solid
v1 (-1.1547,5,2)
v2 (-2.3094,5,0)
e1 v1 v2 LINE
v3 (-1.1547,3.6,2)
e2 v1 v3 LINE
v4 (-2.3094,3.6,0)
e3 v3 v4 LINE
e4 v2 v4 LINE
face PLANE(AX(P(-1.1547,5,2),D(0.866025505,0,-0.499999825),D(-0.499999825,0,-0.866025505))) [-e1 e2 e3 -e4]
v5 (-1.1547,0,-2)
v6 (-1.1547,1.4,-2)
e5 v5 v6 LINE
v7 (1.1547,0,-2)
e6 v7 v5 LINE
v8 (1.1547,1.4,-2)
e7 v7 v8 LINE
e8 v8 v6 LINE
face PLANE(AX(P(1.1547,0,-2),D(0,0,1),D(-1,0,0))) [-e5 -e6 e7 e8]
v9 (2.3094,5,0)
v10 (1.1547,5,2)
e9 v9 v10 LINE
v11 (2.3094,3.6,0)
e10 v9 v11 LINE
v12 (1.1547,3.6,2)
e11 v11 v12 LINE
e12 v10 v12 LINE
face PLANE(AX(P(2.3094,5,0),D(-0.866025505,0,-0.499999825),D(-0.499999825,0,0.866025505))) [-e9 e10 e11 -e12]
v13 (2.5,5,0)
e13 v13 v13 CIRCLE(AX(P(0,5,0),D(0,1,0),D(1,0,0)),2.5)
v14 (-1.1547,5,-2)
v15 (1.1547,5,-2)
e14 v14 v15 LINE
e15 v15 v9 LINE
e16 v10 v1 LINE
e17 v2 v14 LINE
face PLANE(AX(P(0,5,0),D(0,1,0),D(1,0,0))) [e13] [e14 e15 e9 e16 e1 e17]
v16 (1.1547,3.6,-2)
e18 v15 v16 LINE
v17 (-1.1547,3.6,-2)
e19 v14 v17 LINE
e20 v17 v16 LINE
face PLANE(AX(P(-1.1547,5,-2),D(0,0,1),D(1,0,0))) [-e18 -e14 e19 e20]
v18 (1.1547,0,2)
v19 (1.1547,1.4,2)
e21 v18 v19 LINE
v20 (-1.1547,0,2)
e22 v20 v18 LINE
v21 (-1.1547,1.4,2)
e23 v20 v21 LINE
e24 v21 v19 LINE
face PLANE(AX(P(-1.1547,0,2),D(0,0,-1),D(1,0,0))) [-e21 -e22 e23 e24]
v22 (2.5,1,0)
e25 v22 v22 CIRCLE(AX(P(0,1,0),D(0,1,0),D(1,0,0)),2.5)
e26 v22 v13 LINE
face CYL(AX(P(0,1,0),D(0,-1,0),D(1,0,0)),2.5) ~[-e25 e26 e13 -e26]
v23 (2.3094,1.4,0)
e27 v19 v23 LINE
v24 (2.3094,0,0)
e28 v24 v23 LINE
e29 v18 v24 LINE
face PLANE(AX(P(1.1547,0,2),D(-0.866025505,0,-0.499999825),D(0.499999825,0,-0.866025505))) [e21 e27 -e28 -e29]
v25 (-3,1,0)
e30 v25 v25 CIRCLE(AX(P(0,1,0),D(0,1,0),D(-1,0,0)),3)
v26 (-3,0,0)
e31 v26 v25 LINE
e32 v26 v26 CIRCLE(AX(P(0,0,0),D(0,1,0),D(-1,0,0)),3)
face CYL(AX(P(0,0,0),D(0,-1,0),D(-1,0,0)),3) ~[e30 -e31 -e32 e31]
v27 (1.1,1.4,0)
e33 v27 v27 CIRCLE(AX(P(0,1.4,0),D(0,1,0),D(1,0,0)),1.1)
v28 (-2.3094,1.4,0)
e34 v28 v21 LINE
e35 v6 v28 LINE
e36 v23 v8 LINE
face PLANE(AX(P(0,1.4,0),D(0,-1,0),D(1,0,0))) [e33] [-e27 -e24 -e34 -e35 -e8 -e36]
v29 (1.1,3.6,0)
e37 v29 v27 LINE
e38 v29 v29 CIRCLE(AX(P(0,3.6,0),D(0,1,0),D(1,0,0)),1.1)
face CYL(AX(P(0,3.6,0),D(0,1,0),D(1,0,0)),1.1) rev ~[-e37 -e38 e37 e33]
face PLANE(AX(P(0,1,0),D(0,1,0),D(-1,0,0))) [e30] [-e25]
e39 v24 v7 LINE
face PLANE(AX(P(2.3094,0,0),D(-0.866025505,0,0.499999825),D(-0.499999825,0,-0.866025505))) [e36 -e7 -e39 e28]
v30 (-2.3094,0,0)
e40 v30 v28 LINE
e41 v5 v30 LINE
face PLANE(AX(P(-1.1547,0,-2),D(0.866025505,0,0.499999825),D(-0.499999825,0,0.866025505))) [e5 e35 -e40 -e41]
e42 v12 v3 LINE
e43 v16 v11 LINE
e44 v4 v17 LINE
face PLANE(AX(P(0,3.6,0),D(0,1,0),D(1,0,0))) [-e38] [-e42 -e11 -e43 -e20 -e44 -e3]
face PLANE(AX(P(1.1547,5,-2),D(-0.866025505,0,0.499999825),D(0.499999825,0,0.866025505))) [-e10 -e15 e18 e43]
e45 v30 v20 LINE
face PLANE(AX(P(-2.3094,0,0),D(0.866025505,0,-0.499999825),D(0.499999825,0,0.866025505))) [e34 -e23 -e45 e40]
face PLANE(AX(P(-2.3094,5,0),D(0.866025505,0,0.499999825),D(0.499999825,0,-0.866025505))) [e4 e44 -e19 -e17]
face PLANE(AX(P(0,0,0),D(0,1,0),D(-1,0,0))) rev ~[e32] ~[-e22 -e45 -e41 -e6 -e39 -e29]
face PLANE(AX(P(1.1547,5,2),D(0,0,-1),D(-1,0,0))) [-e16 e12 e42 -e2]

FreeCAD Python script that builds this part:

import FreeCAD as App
import Part
import Sketcher

V = App.Vector
Q = App.Units.Quantity

doc = App.newDocument("Part")
body = doc.addObject("PartDesign::Body", "Body")

# Sketch on XZ plane
sketch1 = body.newObject("Sketcher::SketchObject", "Sketch")
sketch1.AttachmentSupport = (doc.getObject("XZ_Plane"), [""])
sketch1.MapMode = "FlatFace"
sketch1.addGeometry(Part.Circle(V(0, 0, 0), V(0, 0, 1), 3), False)
sketch1.addConstraint([
    Sketcher.Constraint("Coincident", 0, 3, -1, 1),
    Sketcher.Constraint("Diameter", 0, 6.0),
])
pad1 = body.newObject("PartDesign::Pad", "Pad")
pad1.Profile = sketch1
pad1.Length = 1
pad1.Reversed = True

# Sketch on XZ plane
sketch2 = body.newObject("Sketcher::SketchObject", "Sketch001")
sketch2.AttachmentSupport = (doc.getObject("XZ_Plane"), [""])
sketch2.MapMode = "FlatFace"
sketch2.AttachmentOffset = App.Placement(V(0, 0, -1), App.Rotation())
sketch2.addGeometry(Part.Circle(V(0, 0, 0), V(0, 0, 1), 2.5), False)
sketch2.addConstraint([
    Sketcher.Constraint("Coincident", 0, 3, -1, 1),
    Sketcher.Constraint("Diameter", 0, 5.0),
])
pad2 = body.newObject("PartDesign::Pad", "Pad001")
pad2.Profile = sketch2
pad2.Length = 4
pad2.Reversed = True

# Sketch on XZ plane
sketch3 = body.newObject("Sketcher::SketchObject", "Sketch002")
sketch3.AttachmentSupport = (doc.getObject("XZ_Plane"), [""])
sketch3.MapMode = "FlatFace"
sketch3.AttachmentOffset = App.Placement(V(0, 0, -5), App.Rotation())
sketch3.addGeometry([
    Part.LineSegment(V(-1.2, -2, 0), V(-2.3, 0, 0)),  # 0
    Part.LineSegment(V(-2.3, 0, 0), V(-1.2, 2, 0)),  # 1
    Part.LineSegment(V(-1.2, 2, 0), V(1.2, 2, 0)),  # 2
    Part.LineSegment(V(1.2, 2, 0), V(2.3, 0, 0)),  # 3
    Part.LineSegment(V(2.3, 0, 0), V(1.2, -2, 0)),  # 4
    Part.LineSegment(V(1.2, -2, 0), V(-1.2, -2, 0)),  # 5
], False)
sketch3.addConstraint([
    Sketcher.Constraint("Coincident", 0, 2, 1, 1),
    Sketcher.Constraint("Coincident", 1, 2, 2, 1),
    Sketcher.Constraint("Coincident", 2, 2, 3, 1),
    Sketcher.Constraint("Coincident", 3, 2, 4, 1),
    Sketcher.Constraint("Coincident", 4, 2, 5, 1),
    Sketcher.Constraint("Coincident", 5, 2, 0, 1),
    Sketcher.Constraint("Horizontal", 2),
    Sketcher.Constraint("Horizontal", 5),
    Sketcher.Constraint("Symmetric", 0, 2, 3, 2, -1, 1),
    Sketcher.Constraint("Symmetric", 1, 2, 4, 2, -1, 1),
    Sketcher.Constraint("PointOnObject", 0, 2, -1),
    Sketcher.Constraint("Parallel", 0, 3),
    Sketcher.Constraint("Vertical", 2, 2, 4, 2),
    Sketcher.Constraint("DistanceY", 4, 2, 2, 2, 4.0),
    Sketcher.Constraint("Angle", 0, Q("120 deg")),
    Sketcher.Constraint("DistanceX", 2, 1, 2, 2, 2.3094),
])
pocket1 = body.newObject("PartDesign::Pocket", "Pocket")
pocket1.Profile = sketch3
pocket1.Length = 1.4
pocket1.Reversed = True

# Sketch on XZ plane
sketch4 = body.newObject("Sketcher::SketchObject", "Sketch003")
sketch4.AttachmentSupport = (doc.getObject("XZ_Plane"), [""])
sketch4.MapMode = "FlatFace"
sketch4.AttachmentOffset = App.Placement(V(0, 0, -3.6), App.Rotation())
sketch4.addGeometry(Part.Circle(V(0, 0, 0), V(0, 0, 1), 1.1), False)
sketch4.addConstraint([
    Sketcher.Constraint("Coincident", 0, 3, -1, 1),
    Sketcher.Constraint("Diameter", 0, 2.2),
])
pocket2 = body.newObject("PartDesign::Pocket", "Pocket001")
pocket2.Profile = sketch4
pocket2.Length = 3.6
pocket2.Reversed = True

# Sketch on XZ plane
sketch5 = body.newObject("Sketcher::SketchObject", "Sketch004")
sketch5.AttachmentSupport = (doc.getObject("XZ_Plane"), [""])
sketch5.MapMode = "FlatFace"
sketch5.addGeometry([
    Part.LineSegment(V(1.2, -2, 0), V(2.3, 0, 0)),  # 0
    Part.LineSegment(V(2.3, 0, 0), V(1.2, 2, 0)),  # 1
    Part.LineSegment(V(1.2, 2, 0), V(-1.2, 2, 0)),  # 2
    Part.LineSegment(V(-1.2, 2, 0), V(-2.3, 0, 0)),  # 3
    Part.LineSegment(V(-2.3, 0, 0), V(-1.2, -2, 0)),  # 4
    Part.LineSegment(V(-1.2, -2, 0), V(1.2, -2, 0)),  # 5
], False)
sketch5.addConstraint([
    Sketcher.Constraint("Coincident", 0, 2, 1, 1),
    Sketcher.Constraint("Coincident", 1, 2, 2, 1),
    Sketcher.Constraint("Coincident", 2, 2, 3, 1),
    Sketcher.Constraint("Coincident", 3, 2, 4, 1),
    Sketcher.Constraint("Coincident", 4, 2, 5, 1),
    Sketcher.Constraint("Coincident", 5, 2, 0, 1),
    Sketcher.Constraint("Horizontal", 2),
    Sketcher.Constraint("Horizontal", 5),
    Sketcher.Constraint("Symmetric", 0, 2, 3, 2, -1, 1),
    Sketcher.Constraint("Symmetric", 1, 2, 4, 2, -1, 1),
    Sketcher.Constraint("PointOnObject", 0, 2, -1),
    Sketcher.Constraint("Parallel", 0, 3),
    Sketcher.Constraint("Vertical", 2, 2, 4, 2),
    Sketcher.Constraint("DistanceY", 4, 2, 2, 2, 4.0),
    Sketcher.Constraint("Angle", 0, Q("60 deg")),
    Sketcher.Constraint("DistanceX", 2, 2, 2, 1, 2.3094),
])
pocket3 = body.newObject("PartDesign::Pocket", "Pocket002")
pocket3.Profile = sketch5
pocket3.Length = 1.4

doc.recompute()
